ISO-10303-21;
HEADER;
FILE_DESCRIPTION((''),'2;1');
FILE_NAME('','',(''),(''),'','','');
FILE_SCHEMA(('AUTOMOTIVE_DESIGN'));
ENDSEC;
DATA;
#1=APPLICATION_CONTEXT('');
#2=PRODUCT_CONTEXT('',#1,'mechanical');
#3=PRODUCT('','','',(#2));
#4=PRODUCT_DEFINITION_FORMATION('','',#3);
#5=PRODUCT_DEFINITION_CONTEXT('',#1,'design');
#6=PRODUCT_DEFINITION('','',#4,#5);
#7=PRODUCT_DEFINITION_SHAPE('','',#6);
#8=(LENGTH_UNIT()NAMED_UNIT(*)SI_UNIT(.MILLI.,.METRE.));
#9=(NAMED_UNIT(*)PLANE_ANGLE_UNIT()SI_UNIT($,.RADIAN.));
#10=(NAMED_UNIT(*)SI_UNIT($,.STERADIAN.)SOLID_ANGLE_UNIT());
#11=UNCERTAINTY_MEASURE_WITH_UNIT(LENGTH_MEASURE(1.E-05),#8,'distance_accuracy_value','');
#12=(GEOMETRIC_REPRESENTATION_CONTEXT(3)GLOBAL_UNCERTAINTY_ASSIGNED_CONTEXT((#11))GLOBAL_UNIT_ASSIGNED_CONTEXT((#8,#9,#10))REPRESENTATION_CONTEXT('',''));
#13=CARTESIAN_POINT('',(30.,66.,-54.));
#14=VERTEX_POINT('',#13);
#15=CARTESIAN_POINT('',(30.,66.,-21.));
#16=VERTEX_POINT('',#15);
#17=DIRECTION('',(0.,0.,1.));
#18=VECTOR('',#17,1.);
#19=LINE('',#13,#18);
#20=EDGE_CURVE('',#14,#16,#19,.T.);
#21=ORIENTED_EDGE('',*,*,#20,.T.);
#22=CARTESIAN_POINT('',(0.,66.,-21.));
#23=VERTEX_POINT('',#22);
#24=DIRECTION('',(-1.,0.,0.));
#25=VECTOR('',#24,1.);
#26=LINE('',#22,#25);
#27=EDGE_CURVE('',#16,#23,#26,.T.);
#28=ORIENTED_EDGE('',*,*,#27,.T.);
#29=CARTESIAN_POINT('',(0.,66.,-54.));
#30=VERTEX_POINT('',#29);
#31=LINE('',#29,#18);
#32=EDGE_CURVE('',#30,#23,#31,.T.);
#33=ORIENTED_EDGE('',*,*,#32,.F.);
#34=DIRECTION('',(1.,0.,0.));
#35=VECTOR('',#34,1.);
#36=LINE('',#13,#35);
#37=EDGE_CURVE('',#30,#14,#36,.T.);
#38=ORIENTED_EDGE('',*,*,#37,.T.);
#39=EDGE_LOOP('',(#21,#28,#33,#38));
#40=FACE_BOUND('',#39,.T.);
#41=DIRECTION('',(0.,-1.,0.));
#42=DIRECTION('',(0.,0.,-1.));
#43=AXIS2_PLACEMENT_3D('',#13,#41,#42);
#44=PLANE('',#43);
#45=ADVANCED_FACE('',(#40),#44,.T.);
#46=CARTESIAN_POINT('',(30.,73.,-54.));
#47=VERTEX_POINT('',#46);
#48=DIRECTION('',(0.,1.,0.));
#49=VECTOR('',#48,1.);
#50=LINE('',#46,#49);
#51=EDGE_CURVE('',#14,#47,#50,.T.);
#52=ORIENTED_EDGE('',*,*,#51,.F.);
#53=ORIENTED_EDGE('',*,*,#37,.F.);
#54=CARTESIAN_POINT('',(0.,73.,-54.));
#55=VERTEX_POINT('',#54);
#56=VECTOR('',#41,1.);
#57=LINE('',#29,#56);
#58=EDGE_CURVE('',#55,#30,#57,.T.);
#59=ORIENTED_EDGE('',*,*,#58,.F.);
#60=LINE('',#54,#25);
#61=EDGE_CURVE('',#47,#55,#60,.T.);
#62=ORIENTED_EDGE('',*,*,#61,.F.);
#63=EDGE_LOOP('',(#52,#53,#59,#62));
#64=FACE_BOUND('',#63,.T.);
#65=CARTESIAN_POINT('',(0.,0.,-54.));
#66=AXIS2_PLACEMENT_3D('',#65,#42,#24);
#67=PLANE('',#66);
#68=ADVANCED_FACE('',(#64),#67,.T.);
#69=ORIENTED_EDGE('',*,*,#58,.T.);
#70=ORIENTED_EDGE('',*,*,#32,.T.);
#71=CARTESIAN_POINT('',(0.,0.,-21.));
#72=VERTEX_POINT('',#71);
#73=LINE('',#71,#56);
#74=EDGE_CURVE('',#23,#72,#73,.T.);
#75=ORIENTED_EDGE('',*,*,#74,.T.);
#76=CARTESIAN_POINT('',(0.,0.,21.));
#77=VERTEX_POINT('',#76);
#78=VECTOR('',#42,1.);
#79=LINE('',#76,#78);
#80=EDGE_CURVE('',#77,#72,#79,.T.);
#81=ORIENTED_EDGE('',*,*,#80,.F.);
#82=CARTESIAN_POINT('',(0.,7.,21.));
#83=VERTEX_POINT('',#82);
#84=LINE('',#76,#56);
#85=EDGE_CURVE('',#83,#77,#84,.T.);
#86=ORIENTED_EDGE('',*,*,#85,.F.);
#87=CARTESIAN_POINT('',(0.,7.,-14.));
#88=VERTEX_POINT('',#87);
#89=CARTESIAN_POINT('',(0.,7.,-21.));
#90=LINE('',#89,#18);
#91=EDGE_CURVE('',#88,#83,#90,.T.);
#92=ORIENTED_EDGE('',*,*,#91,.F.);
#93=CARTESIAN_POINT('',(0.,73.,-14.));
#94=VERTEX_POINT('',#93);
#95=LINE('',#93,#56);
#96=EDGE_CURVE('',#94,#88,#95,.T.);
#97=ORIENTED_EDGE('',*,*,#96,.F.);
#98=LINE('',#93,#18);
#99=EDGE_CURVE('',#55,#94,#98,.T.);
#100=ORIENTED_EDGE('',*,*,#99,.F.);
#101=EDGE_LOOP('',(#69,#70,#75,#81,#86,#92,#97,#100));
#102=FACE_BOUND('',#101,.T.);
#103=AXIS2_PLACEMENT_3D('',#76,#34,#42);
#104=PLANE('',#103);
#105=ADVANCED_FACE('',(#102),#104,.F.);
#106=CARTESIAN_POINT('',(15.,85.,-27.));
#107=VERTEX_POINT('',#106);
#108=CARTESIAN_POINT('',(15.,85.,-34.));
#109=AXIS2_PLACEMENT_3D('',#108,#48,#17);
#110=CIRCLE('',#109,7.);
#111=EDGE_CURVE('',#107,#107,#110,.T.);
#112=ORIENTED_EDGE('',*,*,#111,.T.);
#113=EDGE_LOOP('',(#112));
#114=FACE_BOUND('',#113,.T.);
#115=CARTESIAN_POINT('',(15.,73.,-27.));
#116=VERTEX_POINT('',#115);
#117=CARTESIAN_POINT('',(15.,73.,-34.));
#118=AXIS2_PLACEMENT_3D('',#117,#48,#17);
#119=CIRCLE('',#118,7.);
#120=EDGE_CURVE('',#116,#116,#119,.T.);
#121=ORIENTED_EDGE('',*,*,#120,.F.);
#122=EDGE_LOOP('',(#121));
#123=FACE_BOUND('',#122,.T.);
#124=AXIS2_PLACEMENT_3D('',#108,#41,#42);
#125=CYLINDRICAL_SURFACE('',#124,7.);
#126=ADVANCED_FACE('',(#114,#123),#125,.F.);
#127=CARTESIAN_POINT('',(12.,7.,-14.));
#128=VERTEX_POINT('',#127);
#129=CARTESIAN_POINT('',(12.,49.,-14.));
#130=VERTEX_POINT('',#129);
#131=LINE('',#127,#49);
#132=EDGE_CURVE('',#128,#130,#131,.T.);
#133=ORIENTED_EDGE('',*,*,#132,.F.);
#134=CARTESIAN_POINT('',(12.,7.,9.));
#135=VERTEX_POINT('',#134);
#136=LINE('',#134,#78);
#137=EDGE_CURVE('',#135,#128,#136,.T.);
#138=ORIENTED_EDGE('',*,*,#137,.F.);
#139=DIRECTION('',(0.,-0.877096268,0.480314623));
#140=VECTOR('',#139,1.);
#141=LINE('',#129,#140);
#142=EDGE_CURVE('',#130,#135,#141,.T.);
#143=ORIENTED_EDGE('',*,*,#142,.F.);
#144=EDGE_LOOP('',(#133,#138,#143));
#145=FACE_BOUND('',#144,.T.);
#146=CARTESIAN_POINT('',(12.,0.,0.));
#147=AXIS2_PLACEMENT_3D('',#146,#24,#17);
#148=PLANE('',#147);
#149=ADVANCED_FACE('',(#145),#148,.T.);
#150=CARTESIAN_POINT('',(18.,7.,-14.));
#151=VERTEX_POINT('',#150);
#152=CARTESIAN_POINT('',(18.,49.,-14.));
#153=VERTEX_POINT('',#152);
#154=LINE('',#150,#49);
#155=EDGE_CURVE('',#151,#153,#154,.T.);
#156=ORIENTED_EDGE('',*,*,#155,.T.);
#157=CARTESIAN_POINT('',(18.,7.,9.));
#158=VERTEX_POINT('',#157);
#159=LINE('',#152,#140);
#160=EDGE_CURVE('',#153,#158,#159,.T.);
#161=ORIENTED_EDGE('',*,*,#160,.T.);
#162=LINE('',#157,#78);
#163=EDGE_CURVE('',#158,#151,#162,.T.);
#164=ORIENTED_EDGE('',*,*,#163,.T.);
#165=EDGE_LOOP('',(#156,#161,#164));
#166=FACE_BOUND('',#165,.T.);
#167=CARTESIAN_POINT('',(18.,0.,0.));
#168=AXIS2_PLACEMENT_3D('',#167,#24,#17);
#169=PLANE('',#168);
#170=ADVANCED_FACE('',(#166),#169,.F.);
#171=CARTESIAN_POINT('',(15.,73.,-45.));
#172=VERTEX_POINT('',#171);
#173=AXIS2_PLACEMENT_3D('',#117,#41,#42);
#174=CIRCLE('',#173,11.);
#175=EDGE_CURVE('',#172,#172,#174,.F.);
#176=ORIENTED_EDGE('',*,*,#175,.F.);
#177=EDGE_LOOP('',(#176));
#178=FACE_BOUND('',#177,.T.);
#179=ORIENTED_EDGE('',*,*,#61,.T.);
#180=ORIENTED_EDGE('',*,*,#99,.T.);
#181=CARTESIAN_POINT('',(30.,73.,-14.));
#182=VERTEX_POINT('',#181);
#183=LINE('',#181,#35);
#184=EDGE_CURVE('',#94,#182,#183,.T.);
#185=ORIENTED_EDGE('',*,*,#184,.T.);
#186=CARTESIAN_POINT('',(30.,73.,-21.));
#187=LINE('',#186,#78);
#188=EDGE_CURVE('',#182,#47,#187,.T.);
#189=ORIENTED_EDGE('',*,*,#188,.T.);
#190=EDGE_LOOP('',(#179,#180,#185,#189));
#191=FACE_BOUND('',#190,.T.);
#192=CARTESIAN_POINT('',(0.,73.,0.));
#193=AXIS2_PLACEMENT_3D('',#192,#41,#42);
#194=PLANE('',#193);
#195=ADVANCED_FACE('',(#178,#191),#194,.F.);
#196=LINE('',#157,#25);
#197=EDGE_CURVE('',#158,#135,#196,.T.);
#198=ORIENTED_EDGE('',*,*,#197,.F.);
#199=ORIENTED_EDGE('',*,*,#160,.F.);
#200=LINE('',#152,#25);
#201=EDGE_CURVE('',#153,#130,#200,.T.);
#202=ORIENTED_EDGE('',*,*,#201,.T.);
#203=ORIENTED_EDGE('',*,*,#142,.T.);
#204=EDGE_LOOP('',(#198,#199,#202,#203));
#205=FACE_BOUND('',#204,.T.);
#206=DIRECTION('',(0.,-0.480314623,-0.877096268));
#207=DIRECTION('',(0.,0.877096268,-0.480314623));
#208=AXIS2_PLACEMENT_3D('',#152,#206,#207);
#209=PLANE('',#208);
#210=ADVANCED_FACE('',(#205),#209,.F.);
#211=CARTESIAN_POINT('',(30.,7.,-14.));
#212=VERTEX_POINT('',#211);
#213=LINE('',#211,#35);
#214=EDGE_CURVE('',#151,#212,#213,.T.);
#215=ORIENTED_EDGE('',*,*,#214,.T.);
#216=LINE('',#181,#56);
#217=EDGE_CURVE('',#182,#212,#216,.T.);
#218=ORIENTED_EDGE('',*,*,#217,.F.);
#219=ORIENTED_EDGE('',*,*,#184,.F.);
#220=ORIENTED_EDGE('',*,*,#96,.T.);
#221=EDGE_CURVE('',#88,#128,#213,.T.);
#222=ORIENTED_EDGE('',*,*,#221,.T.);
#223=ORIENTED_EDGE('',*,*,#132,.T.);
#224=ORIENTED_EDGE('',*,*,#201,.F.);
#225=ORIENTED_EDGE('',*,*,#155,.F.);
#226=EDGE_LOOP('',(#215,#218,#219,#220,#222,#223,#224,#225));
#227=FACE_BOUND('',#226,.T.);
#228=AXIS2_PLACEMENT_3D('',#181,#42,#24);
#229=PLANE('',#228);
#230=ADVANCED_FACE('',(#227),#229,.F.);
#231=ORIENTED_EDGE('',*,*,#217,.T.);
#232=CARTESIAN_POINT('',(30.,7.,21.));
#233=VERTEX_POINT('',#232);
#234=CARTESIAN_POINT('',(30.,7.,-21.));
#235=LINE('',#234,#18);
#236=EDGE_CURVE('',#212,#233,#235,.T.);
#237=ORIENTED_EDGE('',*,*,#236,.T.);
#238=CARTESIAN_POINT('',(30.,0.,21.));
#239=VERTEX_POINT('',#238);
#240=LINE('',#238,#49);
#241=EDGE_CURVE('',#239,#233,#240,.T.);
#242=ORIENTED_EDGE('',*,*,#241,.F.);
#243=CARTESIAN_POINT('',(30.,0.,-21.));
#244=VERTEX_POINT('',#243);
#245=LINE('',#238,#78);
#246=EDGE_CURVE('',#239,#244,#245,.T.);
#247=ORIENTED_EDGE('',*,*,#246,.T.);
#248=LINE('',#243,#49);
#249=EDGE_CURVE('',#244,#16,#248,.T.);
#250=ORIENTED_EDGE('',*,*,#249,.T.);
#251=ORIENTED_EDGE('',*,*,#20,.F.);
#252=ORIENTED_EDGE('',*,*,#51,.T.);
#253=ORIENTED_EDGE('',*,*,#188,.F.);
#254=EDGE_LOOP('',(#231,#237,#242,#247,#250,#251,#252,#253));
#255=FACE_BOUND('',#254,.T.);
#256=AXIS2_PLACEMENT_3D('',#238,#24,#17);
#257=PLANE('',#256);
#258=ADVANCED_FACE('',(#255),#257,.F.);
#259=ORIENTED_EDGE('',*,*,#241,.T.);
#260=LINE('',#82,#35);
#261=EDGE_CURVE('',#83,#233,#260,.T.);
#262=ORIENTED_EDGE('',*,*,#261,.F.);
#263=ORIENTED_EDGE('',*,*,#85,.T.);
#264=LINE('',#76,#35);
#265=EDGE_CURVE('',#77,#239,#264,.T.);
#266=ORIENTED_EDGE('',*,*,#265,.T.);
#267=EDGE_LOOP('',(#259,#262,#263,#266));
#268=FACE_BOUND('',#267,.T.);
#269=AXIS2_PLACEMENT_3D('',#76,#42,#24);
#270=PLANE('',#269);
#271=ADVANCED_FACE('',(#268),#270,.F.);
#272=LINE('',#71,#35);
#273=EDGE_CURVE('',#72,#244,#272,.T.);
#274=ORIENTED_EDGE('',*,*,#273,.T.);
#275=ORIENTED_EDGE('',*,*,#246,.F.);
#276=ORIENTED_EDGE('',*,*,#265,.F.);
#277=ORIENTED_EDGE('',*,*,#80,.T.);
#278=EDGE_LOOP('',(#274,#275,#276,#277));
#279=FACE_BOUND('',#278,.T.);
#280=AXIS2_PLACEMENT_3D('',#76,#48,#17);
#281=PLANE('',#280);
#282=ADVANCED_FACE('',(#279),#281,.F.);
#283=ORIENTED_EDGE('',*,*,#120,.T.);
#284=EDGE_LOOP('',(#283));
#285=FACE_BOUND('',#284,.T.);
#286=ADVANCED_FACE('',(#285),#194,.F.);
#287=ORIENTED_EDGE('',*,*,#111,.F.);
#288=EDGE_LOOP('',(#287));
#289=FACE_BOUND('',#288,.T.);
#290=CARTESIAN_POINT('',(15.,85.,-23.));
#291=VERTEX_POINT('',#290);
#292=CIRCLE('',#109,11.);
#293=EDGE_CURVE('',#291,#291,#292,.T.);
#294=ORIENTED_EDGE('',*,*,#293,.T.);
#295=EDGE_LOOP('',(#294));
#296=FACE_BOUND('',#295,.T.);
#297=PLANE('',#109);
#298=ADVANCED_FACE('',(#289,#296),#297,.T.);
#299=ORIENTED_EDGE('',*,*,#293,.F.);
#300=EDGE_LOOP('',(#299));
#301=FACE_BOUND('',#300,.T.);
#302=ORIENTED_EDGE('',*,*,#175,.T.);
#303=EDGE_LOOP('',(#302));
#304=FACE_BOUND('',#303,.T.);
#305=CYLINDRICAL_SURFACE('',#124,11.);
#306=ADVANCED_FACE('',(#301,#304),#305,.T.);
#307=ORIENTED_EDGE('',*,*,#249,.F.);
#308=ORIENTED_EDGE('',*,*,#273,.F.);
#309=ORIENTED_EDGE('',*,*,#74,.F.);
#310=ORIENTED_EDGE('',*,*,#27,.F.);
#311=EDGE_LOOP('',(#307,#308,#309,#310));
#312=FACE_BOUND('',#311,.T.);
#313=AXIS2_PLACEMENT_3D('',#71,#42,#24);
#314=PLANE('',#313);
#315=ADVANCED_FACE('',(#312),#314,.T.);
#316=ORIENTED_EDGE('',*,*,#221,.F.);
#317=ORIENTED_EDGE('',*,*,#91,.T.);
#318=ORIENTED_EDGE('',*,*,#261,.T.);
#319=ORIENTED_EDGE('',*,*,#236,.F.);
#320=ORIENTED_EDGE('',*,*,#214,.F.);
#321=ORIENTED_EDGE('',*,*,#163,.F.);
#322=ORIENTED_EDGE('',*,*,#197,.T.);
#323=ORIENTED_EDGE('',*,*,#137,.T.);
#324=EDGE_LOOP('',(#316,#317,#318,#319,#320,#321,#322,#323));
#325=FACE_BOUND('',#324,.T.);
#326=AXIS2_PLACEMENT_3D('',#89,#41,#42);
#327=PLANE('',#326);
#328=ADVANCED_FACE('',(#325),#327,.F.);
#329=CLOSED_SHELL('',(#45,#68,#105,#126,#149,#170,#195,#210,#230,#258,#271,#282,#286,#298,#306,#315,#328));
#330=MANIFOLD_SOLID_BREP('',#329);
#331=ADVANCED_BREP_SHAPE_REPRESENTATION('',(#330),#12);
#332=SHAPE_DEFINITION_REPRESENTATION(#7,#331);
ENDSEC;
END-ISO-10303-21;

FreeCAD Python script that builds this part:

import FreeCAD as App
import Part
import Sketcher
Q = App.Units.Quantity

doc = App.newDocument("Part")
body = doc.addObject("PartDesign::Body", "Body")

# Sketch on XY plane
sketch1 = body.newObject("Sketcher::SketchObject", "Sketch")
sketch1.AttachmentSupport = (doc.getObject("XY_Plane"), [""])
sketch1.MapMode = "FlatFace"
sketch1.addGeometry([
    Part.LineSegment(App.Vector(0, 66, 0), App.Vector(0, 0, 0)),
    Part.LineSegment(App.Vector(0, 0, 0), App.Vector(30, 0, 0)),
    Part.LineSegment(App.Vector(30, 0, 0), App.Vector(30, 66, 0)),
    Part.LineSegment(App.Vector(30, 66, 0), App.Vector(0, 66, 0)),
], False)
sketch1.addConstraint([
    Sketcher.Constraint("Coincident", 0, 2, 1, 1),
    Sketcher.Constraint("Coincident", 1, 2, 2, 1),
    Sketcher.Constraint("Coincident", 2, 2, 3, 1),
    Sketcher.Constraint("Coincident", 3, 2, 0, 1),
    Sketcher.Constraint("Vertical", 0),
    Sketcher.Constraint("Horizontal", 1),
    Sketcher.Constraint("Vertical", 2),
    Sketcher.Constraint("Horizontal", 3),
    Sketcher.Constraint("Coincident", 0, 2, -1, 1),
    Sketcher.Constraint("DistanceX", 1, 1, 1, 2, Q("30 mm")),
    Sketcher.Constraint("DistanceY", 0, 2, 0, 1, Q("66 mm")),
])
pad1 = body.newObject("PartDesign::Pad", "Pad")
pad1.Profile = sketch1
pad1.Length = 42
pad1.Midplane = True

# Sketch on XY plane
sketch2 = body.newObject("Sketcher::SketchObject", "Sketch001")
sketch2.AttachmentSupport = (doc.getObject("XY_Plane"), [""])
sketch2.MapMode = "FlatFace"
sketch2.AttachmentOffset = App.Placement(App.Vector(0, 0, 21), App.Rotation())
sketch2.addGeometry([
    Part.LineSegment(App.Vector(0, 66, 0), App.Vector(0, 7, 0)),
    Part.LineSegment(App.Vector(0, 7, 0), App.Vector(30, 7, 0)),
    Part.LineSegment(App.Vector(30, 7, 0), App.Vector(30, 66, 0)),
    Part.LineSegment(App.Vector(30, 66, 0), App.Vector(0, 66, 0)),
], False)
sketch2.addConstraint([
    Sketcher.Constraint("Coincident", 0, 2, 1, 1),
    Sketcher.Constraint("Coincident", 1, 2, 2, 1),
    Sketcher.Constraint("Coincident", 2, 2, 3, 1),
    Sketcher.Constraint("Coincident", 3, 2, 0, 1),
    Sketcher.Constraint("Vertical", 0),
    Sketcher.Constraint("Horizontal", 1),
    Sketcher.Constraint("Vertical", 2),
    Sketcher.Constraint("Horizontal", 3),
    Sketcher.Constraint("PointOnObject", 0, 2, -2),
    Sketcher.Constraint("DistanceX", 1, 1, 1, 2, Q("30 mm")),
    Sketcher.Constraint("DistanceY", 0, 2, 0, 1, Q("59 mm")),
    Sketcher.Constraint("DistanceY", -1, 1, 0, 2, Q("7 mm")),
])
pocket1 = body.newObject("PartDesign::Pocket", "Pocket")
pocket1.Profile = sketch2
pocket1.Type = "ThroughAll"

# Sketch on XZ plane
sketch3 = body.newObject("Sketcher::SketchObject", "Sketch002")
sketch3.AttachmentSupport = (doc.getObject("XZ_Plane"), [""])
sketch3.MapMode = "FlatFace"
sketch3.AttachmentOffset = App.Placement(App.Vector(0, 0, -7), App.Rotation())
sketch3.addGeometry([
    Part.LineSegment(App.Vector(0, -21, 0), App.Vector(0, -14, 0)),
    Part.LineSegment(App.Vector(0, -14, 0), App.Vector(30, -14, 0)),
    Part.LineSegment(App.Vector(30, -14, 0), App.Vector(30, -21, 0)),
    Part.LineSegment(App.Vector(30, -21, 0), App.Vector(0, -21, 0)),
], False)
sketch3.addConstraint([
    Sketcher.Constraint("Coincident", 0, 2, 1, 1),
    Sketcher.Constraint("Coincident", 1, 2, 2, 1),
    Sketcher.Constraint("Coincident", 2, 2, 3, 1),
    Sketcher.Constraint("Coincident", 3, 2, 0, 1),
    Sketcher.Constraint("Vertical", 0),
    Sketcher.Constraint("Horizontal", 1),
    Sketcher.Constraint("Vertical", 2),
    Sketcher.Constraint("Horizontal", 3),
    Sketcher.Constraint("PointOnObject", 0, 2, -2),
    Sketcher.Constraint("DistanceX", 1, 1, 1, 2, Q("30 mm")),
    Sketcher.Constraint("DistanceY", 0, 1, 0, 2, Q("7 mm")),
    Sketcher.Constraint("DistanceY", 0, 2, -1, 1, Q("14 mm")),
])
pad2 = body.newObject("PartDesign::Pad", "Pad001")
pad2.Profile = sketch3
pad2.Length = 66
pad2.Reversed = True

# Sketch on XY plane
sketch4 = body.newObject("Sketcher::SketchObject", "Sketch003")
sketch4.AttachmentSupport = (doc.getObject("XY_Plane"), [""])
sketch4.MapMode = "FlatFace"
sketch4.AttachmentOffset = App.Placement(App.Vector(0, 0, -14), App.Rotation())
sketch4.addGeometry([
    Part.LineSegment(App.Vector(0, 73, 0), App.Vector(0, 66, 0)),
    Part.LineSegment(App.Vector(0, 66, 0), App.Vector(30, 66, 0)),
    Part.LineSegment(App.Vector(30, 66, 0), App.Vector(30, 73, 0)),
    Part.LineSegment(App.Vector(30, 73, 0), App.Vector(0, 73, 0)),
], False)
sketch4.addConstraint([
    Sketcher.Constraint("Coincident", 0, 2, 1, 1),
    Sketcher.Constraint("Coincident", 1, 2, 2, 1),
    Sketcher.Constraint("Coincident", 2, 2, 3, 1),
    Sketcher.Constraint("Coincident", 3, 2, 0, 1),
    Sketcher.Constraint("Vertical", 0),
    Sketcher.Constraint("Horizontal", 1),
    Sketcher.Constraint("Vertical", 2),
    Sketcher.Constraint("Horizontal", 3),
    Sketcher.Constraint("PointOnObject", 0, 2, -2),
    Sketcher.Constraint("DistanceX", 1, 1, 1, 2, Q("30 mm")),
    Sketcher.Constraint("DistanceY", 0, 2, 0, 1, Q("7 mm")),
    Sketcher.Constraint("DistanceY", -1, 1, 0, 2, Q("66 mm")),
])
pad3 = body.newObject("PartDesign::Pad", "Pad002")
pad3.Profile = sketch4
pad3.Length = 40
pad3.Reversed = True

# Sketch on XZ plane
sketch5 = body.newObject("Sketcher::SketchObject", "Sketch004")
sketch5.AttachmentSupport = (doc.getObject("XZ_Plane"), [""])
sketch5.MapMode = "FlatFace"
sketch5.AttachmentOffset = App.Placement(App.Vector(0, 0, -73), App.Rotation())
sketch5.addGeometry([
    Part.Circle(App.Vector(15, -34, 0), App.Vector(0, 0, 1), 11),
    Part.Circle(App.Vector(15, -34, 0), App.Vector(0, 0, 1), 7),
], False)
sketch5.addConstraint([
    Sketcher.Constraint("Coincident", 1, 3, 0, 3),
    Sketcher.Constraint("Diameter", 0, Q("22 mm")),
    Sketcher.Constraint("Diameter", 1, Q("14 mm")),
    Sketcher.Constraint("DistanceX", -1, 1, 0, 3, Q("15 mm")),
    Sketcher.Constraint("DistanceY", 0, 3, -1, 1, Q("34 mm")),
])
pad4 = body.newObject("PartDesign::Pad", "Pad003")
pad4.Profile = sketch5
pad4.Length = 12
pad4.Reversed = True

# Sketch on YZ plane
sketch6 = body.newObject("Sketcher::SketchObject", "Sketch005")
sketch6.AttachmentSupport = (doc.getObject("YZ_Plane"), [""])
sketch6.MapMode = "FlatFace"
sketch6.AttachmentOffset = App.Placement(App.Vector(0, 0, 15), App.Rotation())
sketch6.addGeometry([
    Part.LineSegment(App.Vector(49, -14, 0), App.Vector(7, 9, 0)),
    Part.LineSegment(App.Vector(7, 9, 0), App.Vector(7, -14, 0)),
    Part.LineSegment(App.Vector(7, -14, 0), App.Vector(49, -14, 0)),
], False)
sketch6.addConstraint([
    Sketcher.Constraint("Coincident", 0, 2, 1, 1),
    Sketcher.Constraint("Coincident", 1, 2, 2, 1),
    Sketcher.Constraint("Coincident", 2, 2, 0, 1),
    Sketcher.Constraint("Vertical", 1),
    Sketcher.Constraint("Horizontal", 2),
    Sketcher.Constraint("DistanceX", 2, 1, 2, 2, Q("42 mm")),
    Sketcher.Constraint("DistanceY", 1, 2, 1, 1, Q("23 mm")),
    Sketcher.Constraint("DistanceX", -1, 1, 0, 2, Q("7 mm")),
    Sketcher.Constraint("DistanceY", -1, 1, 0, 2, Q("9 mm")),
])
pad5 = body.newObject("PartDesign::Pad", "Pad004")
pad5.Profile = sketch6
pad5.Length = 6
pad5.Midplane = True

doc.recompute()
